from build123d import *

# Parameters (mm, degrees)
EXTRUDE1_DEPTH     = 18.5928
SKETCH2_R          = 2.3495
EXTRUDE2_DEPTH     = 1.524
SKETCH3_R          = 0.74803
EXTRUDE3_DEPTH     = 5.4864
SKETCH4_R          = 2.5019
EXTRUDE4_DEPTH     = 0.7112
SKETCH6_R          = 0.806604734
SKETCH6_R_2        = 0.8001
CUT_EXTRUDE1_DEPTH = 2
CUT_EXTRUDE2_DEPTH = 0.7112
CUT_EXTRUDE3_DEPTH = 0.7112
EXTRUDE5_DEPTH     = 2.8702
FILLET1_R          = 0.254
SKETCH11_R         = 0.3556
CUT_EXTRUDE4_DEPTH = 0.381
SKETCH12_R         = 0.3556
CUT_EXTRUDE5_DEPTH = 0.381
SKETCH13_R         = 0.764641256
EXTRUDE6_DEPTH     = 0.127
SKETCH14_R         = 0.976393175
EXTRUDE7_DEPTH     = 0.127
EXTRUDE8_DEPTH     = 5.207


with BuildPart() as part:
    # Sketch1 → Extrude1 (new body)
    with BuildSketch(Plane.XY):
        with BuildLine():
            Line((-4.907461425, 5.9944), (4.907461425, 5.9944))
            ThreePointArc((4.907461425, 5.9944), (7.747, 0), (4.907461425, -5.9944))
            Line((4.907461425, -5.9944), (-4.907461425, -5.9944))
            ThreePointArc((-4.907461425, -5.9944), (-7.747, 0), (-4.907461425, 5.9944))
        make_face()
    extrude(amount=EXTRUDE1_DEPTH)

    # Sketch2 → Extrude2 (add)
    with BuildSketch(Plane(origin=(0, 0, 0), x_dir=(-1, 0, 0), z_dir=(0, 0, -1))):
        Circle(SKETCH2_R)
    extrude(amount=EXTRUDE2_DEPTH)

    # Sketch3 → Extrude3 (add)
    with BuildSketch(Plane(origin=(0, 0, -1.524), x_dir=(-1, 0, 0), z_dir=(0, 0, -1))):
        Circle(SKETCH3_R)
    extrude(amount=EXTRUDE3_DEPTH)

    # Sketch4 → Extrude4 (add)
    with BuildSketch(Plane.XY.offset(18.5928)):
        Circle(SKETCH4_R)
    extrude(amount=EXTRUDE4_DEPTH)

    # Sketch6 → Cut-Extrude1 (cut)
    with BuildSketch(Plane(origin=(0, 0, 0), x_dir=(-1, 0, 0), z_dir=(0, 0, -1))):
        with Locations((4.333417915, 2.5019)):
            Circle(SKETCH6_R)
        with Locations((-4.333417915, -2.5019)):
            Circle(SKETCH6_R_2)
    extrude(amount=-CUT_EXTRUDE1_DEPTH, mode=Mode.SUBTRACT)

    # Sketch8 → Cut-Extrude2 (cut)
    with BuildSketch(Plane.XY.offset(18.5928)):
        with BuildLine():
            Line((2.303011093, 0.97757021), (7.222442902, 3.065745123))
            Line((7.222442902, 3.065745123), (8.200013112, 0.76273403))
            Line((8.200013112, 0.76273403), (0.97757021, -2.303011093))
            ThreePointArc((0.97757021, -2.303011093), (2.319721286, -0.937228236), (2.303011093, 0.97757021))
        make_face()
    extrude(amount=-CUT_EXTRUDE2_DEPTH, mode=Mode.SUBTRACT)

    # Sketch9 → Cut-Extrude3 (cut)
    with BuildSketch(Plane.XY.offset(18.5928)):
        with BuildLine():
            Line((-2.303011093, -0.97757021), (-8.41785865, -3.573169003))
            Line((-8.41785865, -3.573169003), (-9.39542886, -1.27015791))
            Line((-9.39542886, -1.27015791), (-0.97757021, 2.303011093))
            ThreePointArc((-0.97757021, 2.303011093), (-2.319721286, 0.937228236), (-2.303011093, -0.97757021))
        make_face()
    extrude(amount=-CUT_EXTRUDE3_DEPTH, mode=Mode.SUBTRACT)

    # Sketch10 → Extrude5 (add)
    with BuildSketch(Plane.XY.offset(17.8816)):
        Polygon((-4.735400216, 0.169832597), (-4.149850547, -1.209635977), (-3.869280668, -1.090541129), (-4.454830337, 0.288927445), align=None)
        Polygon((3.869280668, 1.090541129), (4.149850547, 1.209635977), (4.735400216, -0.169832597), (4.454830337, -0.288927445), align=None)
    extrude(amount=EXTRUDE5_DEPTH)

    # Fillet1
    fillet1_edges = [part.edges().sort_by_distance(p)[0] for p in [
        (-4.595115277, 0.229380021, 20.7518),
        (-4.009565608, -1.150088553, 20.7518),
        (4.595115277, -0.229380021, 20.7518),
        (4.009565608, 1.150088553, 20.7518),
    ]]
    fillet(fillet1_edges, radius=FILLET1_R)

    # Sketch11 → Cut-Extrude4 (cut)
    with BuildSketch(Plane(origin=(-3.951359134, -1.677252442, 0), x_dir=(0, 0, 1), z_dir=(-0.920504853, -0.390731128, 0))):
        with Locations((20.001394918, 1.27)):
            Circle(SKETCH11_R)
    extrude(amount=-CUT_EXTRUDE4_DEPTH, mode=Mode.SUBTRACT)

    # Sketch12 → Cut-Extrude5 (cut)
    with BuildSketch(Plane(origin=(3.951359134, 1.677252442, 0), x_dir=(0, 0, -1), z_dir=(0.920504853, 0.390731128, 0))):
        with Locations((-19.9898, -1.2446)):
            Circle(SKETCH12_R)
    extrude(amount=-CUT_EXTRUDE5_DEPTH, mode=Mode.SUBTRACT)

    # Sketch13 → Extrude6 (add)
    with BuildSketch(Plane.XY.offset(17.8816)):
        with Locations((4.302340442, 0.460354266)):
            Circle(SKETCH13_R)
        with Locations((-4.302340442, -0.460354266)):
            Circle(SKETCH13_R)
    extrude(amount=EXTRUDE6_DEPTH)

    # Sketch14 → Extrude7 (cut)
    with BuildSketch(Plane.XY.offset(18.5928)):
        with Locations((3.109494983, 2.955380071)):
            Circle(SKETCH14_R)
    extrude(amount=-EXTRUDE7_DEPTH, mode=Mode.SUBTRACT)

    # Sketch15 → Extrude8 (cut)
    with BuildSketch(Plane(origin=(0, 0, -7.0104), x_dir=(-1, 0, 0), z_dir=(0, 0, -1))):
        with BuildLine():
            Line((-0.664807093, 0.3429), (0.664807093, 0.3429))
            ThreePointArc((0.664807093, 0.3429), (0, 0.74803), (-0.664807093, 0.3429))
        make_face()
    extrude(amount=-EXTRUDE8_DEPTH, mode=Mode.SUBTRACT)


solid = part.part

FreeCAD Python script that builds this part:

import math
import FreeCAD as App
import Part
import Sketcher
from FreeCAD import Vector
Q = App.Units.Quantity


def edges_at(feature, points):
    """Names of the edges that pass closest to the given points."""
    edges = feature.Shape.Edges
    near = lambda p: min(range(len(edges)), key=lambda i: edges[i].distToShape(Part.Vertex(*p))[0])
    return sorted({f"Edge{near(p) + 1}" for p in points})


def add_polygon(sketch, points):
    """Adds a closed chain of lines whose ends are joined by coincident constraints."""
    first, n = sketch.GeometryCount, len(points)
    for a, b in zip(points, points[1:] + points[:1]):
        sketch.addGeometry(Part.LineSegment(App.Vector(*a, 0), App.Vector(*b, 0)), False)
    for i in range(n):
        sketch.addConstraint(Sketcher.Constraint("Coincident", first + i, 2, first + (i + 1) % n, 1))

doc = App.newDocument("Part")
body = doc.addObject("PartDesign::Body", "Body")

# Sketch on XY plane
sketch1 = doc.addObject("Sketcher::SketchObject", "Sketch")
body.addObject(sketch1)
sketch1.AttachmentSupport = (doc.XY_Plane, [""])
sketch1.MapMode = "FlatFace"
sketch1.addGeometry(Part.LineSegment(Vector(5, 6, 0), Vector(-5, 6, 0)), False)
sketch1.addGeometry(Part.ArcOfCircle(Part.Circle(Vector(0, 0, 0), Vector(0, 0, 1), 8), math.radians(129), math.radians(231)), False)
sketch1.addGeometry(Part.LineSegment(Vector(-5, -6, 0), Vector(5, -6, 0)), False)
sketch1.addGeometry(Part.ArcOfCircle(Part.Circle(Vector(0, 0, 0), Vector(0, 0, 1), 8), math.radians(-51), math.radians(51)), False)
sketch1.addConstraint(Sketcher.Constraint("Coincident", 0, 2, 1, 1))
sketch1.addConstraint(Sketcher.Constraint("Coincident", 1, 2, 2, 1))
sketch1.addConstraint(Sketcher.Constraint("Coincident", 2, 2, 3, 1))
sketch1.addConstraint(Sketcher.Constraint("Coincident", 3, 2, 0, 1))
sketch1.addConstraint(Sketcher.Constraint("Horizontal", 0))
sketch1.addConstraint(Sketcher.Constraint("Horizontal", 2))
sketch1.addConstraint(Sketcher.Constraint("Coincident", 1, 3, -1, 1))
sketch1.addConstraint(Sketcher.Constraint("Coincident", 3, 3, -1, 1))
sketch1.addConstraint(Sketcher.Constraint("Equal", 1, 3))
sketch1.addConstraint(Sketcher.Constraint("Vertical", 0, 2, 1, 2))
sketch1.addConstraint(Sketcher.Constraint("Radius", 1, Q("0.305 in")))
sketch1.addConstraint(Sketcher.Constraint("DistanceY", -1, 1, 0, 2, Q("0.236 in")))
pad1 = doc.addObject("PartDesign::Pad", "Pad")
body.addObject(pad1)
pad1.Profile = sketch1
pad1.Length = Q("0.732 in")

# Sketch on XY plane
sketch2 = doc.addObject("Sketcher::SketchObject", "Sketch001")
body.addObject(sketch2)
sketch2.AttachmentSupport = (doc.XY_Plane, [""])
sketch2.MapMode = "FlatFace"
sketch2.addGeometry(Part.Circle(Vector(0, 0, 0), Vector(0, 0, 1), 2.3), False)
sketch2.addConstraint(Sketcher.Constraint("Coincident", 0, 3, -1, 1))
sketch2.addConstraint(Sketcher.Constraint("Diameter", 0, Q("0.185 in")))
pad2 = doc.addObject("PartDesign::Pad", "Pad001")
body.addObject(pad2)
pad2.Profile = sketch2
pad2.Length = Q("0.06 in")
pad2.Reversed = True

# Sketch on XY plane
sketch3 = doc.addObject("Sketcher::SketchObject", "Sketch002")
body.addObject(sketch3)
sketch3.AttachmentSupport = (doc.XY_Plane, [""])
sketch3.MapMode = "FlatFace"
sketch3.AttachmentOffset = App.Placement(Vector(0, 0, -0.06 * 25.4), App.Rotation())
sketch3.addGeometry(Part.Circle(Vector(0, 0, 0), Vector(0, 0, 1), 0.7), False)
sketch3.addConstraint(Sketcher.Constraint("Coincident", 0, 3, -1, 1))
sketch3.addConstraint(Sketcher.Constraint("Diameter", 0, Q("0.0589 in")))
pad3 = doc.addObject("PartDesign::Pad", "Pad002")
body.addObject(pad3)
pad3.Profile = sketch3
pad3.Length = Q("0.216 in")
pad3.Reversed = True

# Sketch on XY plane
sketch4 = doc.addObject("Sketcher::SketchObject", "Sketch003")
body.addObject(sketch4)
sketch4.AttachmentSupport = (doc.XY_Plane, [""])
sketch4.MapMode = "FlatFace"
sketch4.AttachmentOffset = App.Placement(Vector(0, 0, 0.732 * 25.4), App.Rotation())
sketch4.addGeometry(Part.Circle(Vector(0, 0, 0), Vector(0, 0, 1), 2.5), False)
sketch4.addConstraint(Sketcher.Constraint("Coincident", 0, 3, -1, 1))
sketch4.addConstraint(Sketcher.Constraint("Diameter", 0, Q("0.197 in")))
pad4 = doc.addObject("PartDesign::Pad", "Pad003")
body.addObject(pad4)
pad4.Profile = sketch4
pad4.Length = Q("0.028 in")

# Sketch on XY plane
sketch5 = doc.addObject("Sketcher::SketchObject", "Sketch004")
body.addObject(sketch5)
sketch5.AttachmentSupport = (doc.XY_Plane, [""])
sketch5.MapMode = "FlatFace"
sketch5.addGeometry(Part.Circle(Vector(-4.3, 2.5, 0), Vector(0, 0, 1), 0.8), False)
sketch5.addGeometry(Part.Circle(Vector(4.3, -2.5, 0), Vector(0, 0, 1), 0.8), False)
sketch5.addConstraint(Sketcher.Constraint("Symmetric", 0, 3, 1, 3, -1, 1))
sketch5.addConstraint(Sketcher.Constraint("Diameter", 1, Q("0.063 in")))
sketch5.addConstraint(Sketcher.Constraint("Diameter", 0, Q("1.613209 mm")))
sketch5.addConstraint(Sketcher.Constraint("DistanceY", 1, 3, 0, 3, Q("0.197 in")))
sketch5.addConstraint(Sketcher.Constraint("DistanceX", 0, 3, -1, 1, Q("4.333418 mm")))
pocket1 = doc.addObject("PartDesign::Pocket", "Pocket")
body.addObject(pocket1)
pocket1.Profile = sketch5
pocket1.Length = 2
pocket1.Reversed = True

# Sketch on XY plane
sketch6 = doc.addObject("Sketcher::SketchObject", "Sketch005")
body.addObject(sketch6)
sketch6.AttachmentSupport = (doc.XY_Plane, [""])
sketch6.MapMode = "FlatFace"
sketch6.AttachmentOffset = App.Placement(Vector(0, 0, 0.732 * 25.4), App.Rotation())
sketch6.addGeometry(Part.LineSegment(Vector(7.2, 3.1, 0), Vector(2.3, 1, 0)), False)
sketch6.addGeometry(Part.ArcOfCircle(Part.Circle(Vector(0, 0, 0), Vector(0, 0, 1), 2.5), math.radians(-67), math.radians(23)), False)
sketch6.addGeometry(Part.LineSegment(Vector(1, -2.3, 0), Vector(8.2, 0.8, 0)), False)
sketch6.addGeometry(Part.LineSegment(Vector(8.2, 0.8, 0), Vector(7.2, 3.1, 0)), False)
sketch6.addConstraint(Sketcher.Constraint("Coincident", 0, 2, 1, 2))
sketch6.addConstraint(Sketcher.Constraint("Tangent", 1, 1, 2, 1))
sketch6.addConstraint(Sketcher.Constraint("Coincident", 2, 2, 3, 1))
sketch6.addConstraint(Sketcher.Constraint("Coincident", 3, 2, 0, 1))
sketch6.addConstraint(Sketcher.Constraint("Coincident", 1, 3, -1, 1))
sketch6.addConstraint(Sketcher.Constraint("Parallel", 0, 2))
sketch6.addConstraint(Sketcher.Constraint("Perpendicular", 2, 3))
sketch6.addConstraint(Sketcher.Constraint("Angle", 0, Q("-157 deg")))
sketch6.addConstraint(Sketcher.Constraint("Radius", 1, Q("0.0985 in")))
sketch6.addConstraint(Sketcher.Constraint("Distance", 3, Q("0.0985 in")))
sketch6.addConstraint(Sketcher.Constraint("DistanceX", 0, 2, 3, 2, Q("4.919432 mm")))
pocket2 = doc.addObject("PartDesign::Pocket", "Pocket001")
body.addObject(pocket2)
pocket2.Profile = sketch6
pocket2.Length = Q("0.028 in")

# Sketch on XY plane
sketch7 = doc.addObject("Sketcher::SketchObject", "Sketch006")
body.addObject(sketch7)
sketch7.AttachmentSupport = (doc.XY_Plane, [""])
sketch7.MapMode = "FlatFace"
sketch7.AttachmentOffset = App.Placement(Vector(0, 0, 0.732 * 25.4), App.Rotation())
sketch7.addGeometry(Part.LineSegment(Vector(-8.4, -3.6, 0), Vector(-2.3, -1, 0)), False)
sketch7.addGeometry(Part.ArcOfCircle(Part.Circle(Vector(0, 0, 0), Vector(0, 0, 1), 2.5), math.radians(113), math.radians(203)), False)
sketch7.addGeometry(Part.LineSegment(Vector(-1, 2.3, 0), Vector(-9.4, -1.3, 0)), False)
sketch7.addGeometry(Part.LineSegment(Vector(-9.4, -1.3, 0), Vector(-8.4, -3.6, 0)), False)
sketch7.addConstraint(Sketcher.Constraint("Coincident", 0, 2, 1, 2))
sketch7.addConstraint(Sketcher.Constraint("Tangent", 1, 1, 2, 1))
sketch7.addConstraint(Sketcher.Constraint("Coincident", 2, 2, 3, 1))
sketch7.addConstraint(Sketcher.Constraint("Coincident", 3, 2, 0, 1))
sketch7.addConstraint(Sketcher.Constraint("Coincident", 1, 3, -1, 1))
sketch7.addConstraint(Sketcher.Constraint("Parallel", 0, 2))
sketch7.addConstraint(Sketcher.Constraint("Perpendicular", 2, 3))
sketch7.addConstraint(Sketcher.Constraint("Angle", 0, Q("23 deg")))
sketch7.addConstraint(Sketcher.Constraint("Radius", 1, Q("0.0985 in")))
sketch7.addConstraint(Sketcher.Constraint("Distance", 3, Q("0.0985 in")))
sketch7.addConstraint(Sketcher.Constraint("DistanceY", 3, 2, 0, 2, Q("2.595599 mm")))
pocket3 = doc.addObject("PartDesign::Pocket", "Pocket002")
body.addObject(pocket3)
pocket3.Profile = sketch7
pocket3.Length = Q("0.028 in")

# Sketch on XY plane
sketch8 = doc.addObject("Sketcher::SketchObject", "Sketch007")
body.addObject(sketch8)
sketch8.AttachmentSupport = (doc.XY_Plane, [""])
sketch8.MapMode = "FlatFace"
sketch8.AttachmentOffset = App.Placement(Vector(0, 0, 0.704 * 25.4), App.Rotation())
add_polygon(sketch8, [(-4.74, 0.17), (-4.15, -1.21), (-3.87, -1.09), (-4.45, 0.29)])  # lines 0-3
add_polygon(sketch8, [(4.15, 1.21), (3.87, 1.09), (4.45, -0.29), (4.74, -0.17)])  # lines 4-7
sketch8.addConstraint(Sketcher.Constraint("Symmetric", 1, 2, 4, 2, -1, 1))
sketch8.addConstraint(Sketcher.Constraint("Symmetric", 2, 2, 5, 2, -1, 1))
sketch8.addConstraint(Sketcher.Constraint("Symmetric", 3, 2, 6, 2, -1, 1))
sketch8.addConstraint(Sketcher.Constraint("Symmetric", 0, 2, 7, 2, -1, 1))
sketch8.addConstraint(Sketcher.Constraint("Perpendicular", 0, 1))
sketch8.addConstraint(Sketcher.Constraint("Perpendicular", 1, 2))
sketch8.addConstraint(Sketcher.Constraint("Perpendicular", 2, 3))
sketch8.addConstraint(Sketcher.Constraint("Angle", 0, Q("-67 deg")))
sketch8.addConstraint(Sketcher.Constraint("Distance", 0, Q("0.059 in")))
sketch8.addConstraint(Sketcher.Constraint("Distance", 1, Q("0.012 in")))
sketch8.addConstraint(Sketcher.Constraint("DistanceX", 3, 2, -1, 1, Q("4.7354 mm")))
sketch8.addConstraint(Sketcher.Constraint("DistanceY", 1, 2, -1, 1, Q("1.090541 mm")))
pad5 = doc.addObject("PartDesign::Pad", "Pad004")
body.addObject(pad5)
pad5.Profile = sketch8
pad5.Length = Q("0.113 in")
doc.recompute()

fillet = doc.addObject("PartDesign::Fillet", "Fillet")
body.addObject(fillet)
fillet.Base = (pad5, edges_at(pad5, [
    (-4.595, 0.229, 20.752),
    (-4.01, -1.15, 20.752),
    (4.595, -0.229, 20.752),
    (4.01, 1.15, 20.752),
]))
fillet.Radius = Q("0.01 in")

# Sketch on an angled plane
sketch9 = doc.addObject("Sketcher::SketchObject", "Sketch008")
body.addObject(sketch9)
sketch9.Placement = App.Placement(Vector(-3.951359, -1.677252, 0), App.Rotation(Vector(0, 0, 1), Vector(-0.390731128, 0.920504854, 0), Vector(-0.920504854, -0.390731128, 0), "ZXY"))
sketch9.addGeometry(Part.Circle(Vector(20, 1.27, 0), Vector(0, 0, 1), 0.36), False)
sketch9.addConstraint(Sketcher.Constraint("Diameter", 0, Q("0.028 in")))
sketch9.addConstraint(Sketcher.Constraint("DistanceY", -1, 1, 0, 3, Q("0.05 in")))
sketch9.addConstraint(Sketcher.Constraint("DistanceX", -1, 1, 0, 3, Q("20.001395 mm")))
pocket4 = doc.addObject("PartDesign::Pocket", "Pocket003")
body.addObject(pocket4)
pocket4.Profile = sketch9
pocket4.Length = Q("0.015 in")

# Sketch on an angled plane
sketch10 = doc.addObject("Sketcher::SketchObject", "Sketch009")
body.addObject(sketch10)
sketch10.Placement = App.Placement(Vector(3.951359, 1.677252, 0), App.Rotation(Vector(0, 0, -1), Vector(-0.390731128, 0.920504854, 0), Vector(0.920504854, 0.390731128, 0), "ZXY"))
sketch10.addGeometry(Part.Circle(Vector(-19.99, -1.24, 0), Vector(0, 0, 1), 0.36), False)
sketch10.addConstraint(Sketcher.Constraint("Diameter", 0, Q("0.028 in")))
sketch10.addConstraint(Sketcher.Constraint("DistanceX", 0, 3, -1, 1, Q("0.787 in")))
sketch10.addConstraint(Sketcher.Constraint("DistanceY", 0, 3, -1, 1, Q("0.049 in")))
pocket5 = doc.addObject("PartDesign::Pocket", "Pocket004")
body.addObject(pocket5)
pocket5.Profile = sketch10
pocket5.Length = Q("0.015 in")

# Sketch on XY plane
sketch11 = doc.addObject("Sketcher::SketchObject", "Sketch010")
body.addObject(sketch11)
sketch11.AttachmentSupport = (doc.XY_Plane, [""])
sketch11.MapMode = "FlatFace"
sketch11.AttachmentOffset = App.Placement(Vector(0, 0, 0.704 * 25.4), App.Rotation())
sketch11.addGeometry(Part.Circle(Vector(4.3, 0.5, 0), Vector(0, 0, 1), 0.8), False)
sketch11.addGeometry(Part.Circle(Vector(-4.3, -0.5, 0), Vector(0, 0, 1), 0.8), False)
sketch11.addConstraint(Sketcher.Constraint("Equal", 0, 1))
sketch11.addConstraint(Sketcher.Constraint("Symmetric", 0, 3, 1, 3, -1, 1))
sketch11.addConstraint(Sketcher.Constraint("Diameter", 0, Q("1.529283 mm")))
sketch11.addConstraint(Sketcher.Constraint("DistanceX", -1, 1, 0, 3, Q("4.30234 mm")))
sketch11.addConstraint(Sketcher.Constraint("DistanceY", 1, 3, 0, 3, Q("0.920709 mm")))
pad6 = doc.addObject("PartDesign::Pad", "Pad005")
body.addObject(pad6)
pad6.Profile = sketch11
pad6.Length = Q("0.005 in")

# Sketch on XY plane
sketch12 = doc.addObject("Sketcher::SketchObject", "Sketch011")
body.addObject(sketch12)
sketch12.AttachmentSupport = (doc.XY_Plane, [""])
sketch12.MapMode = "FlatFace"
sketch12.AttachmentOffset = App.Placement(Vector(0, 0, 0.732 * 25.4), App.Rotation())
sketch12.addGeometry(Part.Circle(Vector(3.1, 3, 0), Vector(0, 0, 1), 1), False)
sketch12.addConstraint(Sketcher.Constraint("Diameter", 0, Q("1.952786 mm")))
sketch12.addConstraint(Sketcher.Constraint("DistanceY", -1, 1, 0, 3, Q("2.95538 mm")))
sketch12.addConstraint(Sketcher.Constraint("DistanceX", -1, 1, 0, 3, Q("3.109495 mm")))
pocket6 = doc.addObject("PartDesign::Pocket", "Pocket005")
body.addObject(pocket6)
pocket6.Profile = sketch12
pocket6.Length = Q("0.005 in")

# Sketch on XY plane
sketch13 = doc.addObject("Sketcher::SketchObject", "Sketch012")
body.addObject(sketch13)
sketch13.AttachmentSupport = (doc.XY_Plane, [""])
sketch13.MapMode = "FlatFace"
sketch13.AttachmentOffset = App.Placement(Vector(0, 0, -0.276 * 25.4), App.Rotation())
sketch13.addGeometry(Part.LineSegment(Vector(0.7, 0.3, 0), Vector(-0.7, 0.3, 0)), False)
sketch13.addGeometry(Part.ArcOfCircle(Part.Circle(Vector(0, 0, 0), Vector(0, 0, 1), 0.7), math.radians(27), math.radians(153)), False)
sketch13.addConstraint(Sketcher.Constraint("Coincident", 0, 1, 1, 1))
sketch13.addConstraint(Sketcher.Constraint("Coincident", 1, 2, 0, 2))
sketch13.addConstraint(Sketcher.Constraint("Horizontal", 0))
sketch13.addConstraint(Sketcher.Constraint("Coincident", 1, 3, -1, 1))
sketch13.addConstraint(Sketcher.Constraint("Radius", 1, Q("0.74803 mm")))
sketch13.addConstraint(Sketcher.Constraint("DistanceY", -1, 1, 0, 1, Q("0.0135 in")))
pocket7 = doc.addObject("PartDesign::Pocket", "Pocket006")
body.addObject(pocket7)
pocket7.Profile = sketch13
pocket7.Length = Q("0.205 in")
pocket7.Reversed = True

doc.recompute()
